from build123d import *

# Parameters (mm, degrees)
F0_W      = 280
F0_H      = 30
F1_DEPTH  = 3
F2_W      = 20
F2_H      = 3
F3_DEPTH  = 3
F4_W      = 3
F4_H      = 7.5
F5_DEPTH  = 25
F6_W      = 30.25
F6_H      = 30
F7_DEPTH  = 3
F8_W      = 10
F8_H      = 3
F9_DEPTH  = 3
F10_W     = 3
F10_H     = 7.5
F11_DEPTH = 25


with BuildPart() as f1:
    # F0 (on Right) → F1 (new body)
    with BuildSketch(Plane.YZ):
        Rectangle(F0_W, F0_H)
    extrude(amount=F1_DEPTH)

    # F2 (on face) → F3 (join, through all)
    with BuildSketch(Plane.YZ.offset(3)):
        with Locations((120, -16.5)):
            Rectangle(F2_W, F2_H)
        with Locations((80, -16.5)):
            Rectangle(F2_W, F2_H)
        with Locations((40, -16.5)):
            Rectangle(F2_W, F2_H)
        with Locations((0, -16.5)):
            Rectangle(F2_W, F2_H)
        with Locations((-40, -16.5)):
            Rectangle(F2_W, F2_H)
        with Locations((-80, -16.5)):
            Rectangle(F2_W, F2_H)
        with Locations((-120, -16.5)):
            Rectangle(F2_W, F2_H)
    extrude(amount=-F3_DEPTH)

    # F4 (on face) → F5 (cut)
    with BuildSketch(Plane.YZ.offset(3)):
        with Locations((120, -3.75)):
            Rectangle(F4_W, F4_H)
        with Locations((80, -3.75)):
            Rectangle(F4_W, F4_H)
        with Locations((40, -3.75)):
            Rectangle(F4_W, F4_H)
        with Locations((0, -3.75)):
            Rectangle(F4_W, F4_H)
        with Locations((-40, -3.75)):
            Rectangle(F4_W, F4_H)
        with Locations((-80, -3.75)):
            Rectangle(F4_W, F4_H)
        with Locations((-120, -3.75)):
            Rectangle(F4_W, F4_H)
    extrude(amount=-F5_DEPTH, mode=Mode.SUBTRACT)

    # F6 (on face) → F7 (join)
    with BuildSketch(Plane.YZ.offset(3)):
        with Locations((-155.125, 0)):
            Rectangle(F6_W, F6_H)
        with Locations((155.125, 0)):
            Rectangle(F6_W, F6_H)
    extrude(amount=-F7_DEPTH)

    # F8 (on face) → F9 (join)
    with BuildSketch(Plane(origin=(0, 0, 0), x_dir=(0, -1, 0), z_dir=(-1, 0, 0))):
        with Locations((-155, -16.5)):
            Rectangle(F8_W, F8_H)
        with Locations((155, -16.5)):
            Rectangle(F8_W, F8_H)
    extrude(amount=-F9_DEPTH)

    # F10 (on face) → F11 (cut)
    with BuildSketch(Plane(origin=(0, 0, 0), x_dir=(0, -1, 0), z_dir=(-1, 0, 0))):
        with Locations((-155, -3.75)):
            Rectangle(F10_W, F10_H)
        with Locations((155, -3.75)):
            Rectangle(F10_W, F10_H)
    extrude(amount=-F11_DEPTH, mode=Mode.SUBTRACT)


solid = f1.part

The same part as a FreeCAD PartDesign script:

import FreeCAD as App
import Part
import Sketcher
from FreeCAD import Vector


def add_polygon(sketch, points):
    """Adds a closed chain of lines whose ends are joined by coincident constraints."""
    first, n = sketch.GeometryCount, len(points)
    for a, b in zip(points, points[1:] + points[:1]):
        sketch.addGeometry(Part.LineSegment(App.Vector(*a, 0), App.Vector(*b, 0)), False)
    for i in range(n):
        sketch.addConstraint(Sketcher.Constraint("Coincident", first + i, 2, first + (i + 1) % n, 1))

doc = App.newDocument("Part")
body = doc.addObject("PartDesign::Body", "Body")

# Sketch on YZ plane
sketch1 = body.newObject("Sketcher::SketchObject", "Sketch")
sketch1.AttachmentSupport = (doc.getObject("YZ_Plane"), [""])
sketch1.MapMode = "FlatFace"
add_polygon(sketch1, [(-140, 15), (-140, -15), (140, -15), (140, 15)])  # lines 0-3
sketch1.addConstraint([
    Sketcher.Constraint("Vertical", 0),
    Sketcher.Constraint("Horizontal", 1),
    Sketcher.Constraint("Vertical", 2),
    Sketcher.Constraint("Horizontal", 3),
    Sketcher.Constraint("Symmetric", 0, 2, 2, 2, -1, 1),
    Sketcher.Constraint("DistanceX", 1, 1, 1, 2, 280.0),
    Sketcher.Constraint("DistanceY", 0, 2, 0, 1, 30.0),
])
pad1 = body.newObject("PartDesign::Pad", "Pad")
pad1.Profile = sketch1
pad1.Length = 3

# Sketch on YZ plane
sketch2 = body.newObject("Sketcher::SketchObject", "Sketch001")
sketch2.AttachmentSupport = (doc.getObject("YZ_Plane"), [""])
sketch2.MapMode = "FlatFace"
sketch2.AttachmentOffset = App.Placement(Vector(0, 0, 3), App.Rotation())
add_polygon(sketch2, [(110, -15), (110, -18), (130, -18), (130, -15)])  # lines 0-3
add_polygon(sketch2, [(70, -15), (70, -18), (90, -18), (90, -15)])  # lines 4-7
add_polygon(sketch2, [(30, -15), (30, -18), (50, -18), (50, -15)])  # lines 8-11
add_polygon(sketch2, [(-10, -15), (-10, -18), (10, -18), (10, -15)])  # lines 12-15
add_polygon(sketch2, [(-50, -15), (-50, -18), (-30, -18), (-30, -15)])  # lines 16-19
add_polygon(sketch2, [(-90, -15), (-90, -18), (-70, -18), (-70, -15)])  # lines 20-23
add_polygon(sketch2, [(-130, -15), (-130, -18), (-110, -18), (-110, -15)])  # lines 24-27
sketch2.addConstraint([
    Sketcher.Constraint("Vertical", 0),
    Sketcher.Constraint("Horizontal", 1),
    Sketcher.Constraint("Vertical", 2),
    Sketcher.Constraint("Horizontal", 3),
    Sketcher.Constraint("Vertical", 4),
    Sketcher.Constraint("Horizontal", 5),
    Sketcher.Constraint("Vertical", 6),
    Sketcher.Constraint("Horizontal", 7),
    Sketcher.Constraint("Vertical", 8),
    Sketcher.Constraint("Horizontal", 9),
    Sketcher.Constraint("Vertical", 10),
    Sketcher.Constraint("Horizontal", 11),
    Sketcher.Constraint("Vertical", 12),
    Sketcher.Constraint("Horizontal", 13),
    Sketcher.Constraint("Vertical", 14),
    Sketcher.Constraint("Horizontal", 15),
    Sketcher.Constraint("Vertical", 16),
    Sketcher.Constraint("Horizontal", 17),
    Sketcher.Constraint("Vertical", 18),
    Sketcher.Constraint("Horizontal", 19),
    Sketcher.Constraint("Vertical", 20),
    Sketcher.Constraint("Horizontal", 21),
    Sketcher.Constraint("Vertical", 22),
    Sketcher.Constraint("Horizontal", 23),
    Sketcher.Constraint("Vertical", 24),
    Sketcher.Constraint("Horizontal", 25),
    Sketcher.Constraint("Vertical", 26),
    Sketcher.Constraint("Horizontal", 27),
    Sketcher.Constraint("Symmetric", 9, 2, 16, 2, -2),
    Sketcher.Constraint("Symmetric", 11, 2, 18, 2, -2),
    Sketcher.Constraint("Symmetric", 5, 2, 20, 2, -2),
    Sketcher.Constraint("Symmetric", 7, 2, 22, 2, -2),
    Sketcher.Constraint("Symmetric", 1, 2, 24, 2, -2),
    Sketcher.Constraint("Symmetric", 3, 2, 26, 2, -2),
    Sketcher.Constraint("Horizontal", 1, 2, 4, 2),
    Sketcher.Constraint("Horizontal", 3, 2, 6, 2),
    Sketcher.Constraint("Horizontal", 5, 2, 8, 2),
    Sketcher.Constraint("Horizontal", 7, 2, 10, 2),
    Sketcher.Constraint("Horizontal", 9, 2, 12, 2),
    Sketcher.Constraint("Horizontal", 11, 2, 14, 2),
    Sketcher.Constraint("Equal", 3, 5),
    Sketcher.Constraint("Equal", 7, 9),
    Sketcher.Constraint("Equal", 11, 13),
    Sketcher.Constraint("DistanceX", 1, 1, 1, 2, 20.0),
    Sketcher.Constraint("DistanceY", 0, 2, 0, 1, 3.0),
    Sketcher.Constraint("DistanceX", -1, 1, 0, 2, 110.0),
    Sketcher.Constraint("DistanceY", 0, 2, -1, 1, 18.0),
    Sketcher.Constraint("DistanceX", -1, 1, 4, 2, 70.0),
    Sketcher.Constraint("DistanceX", -1, 1, 8, 2, 30.0),
    Sketcher.Constraint("DistanceX", 12, 2, -1, 1, 10.0),
])
pad2 = body.newObject("PartDesign::Pad", "Pad001")
pad2.Profile = sketch2
pad2.Length = 3
pad2.Reversed = True

# Sketch on YZ plane
sketch3 = body.newObject("Sketcher::SketchObject", "Sketch002")
sketch3.AttachmentSupport = (doc.getObject("YZ_Plane"), [""])
sketch3.MapMode = "FlatFace"
sketch3.AttachmentOffset = App.Placement(Vector(0, 0, 3), App.Rotation())
add_polygon(sketch3, [(118.5, 0), (118.5, -7.5), (121.5, -7.5), (121.5, 0)])  # lines 0-3
add_polygon(sketch3, [(78.5, 0), (78.5, -7.5), (81.5, -7.5), (81.5, 0)])  # lines 4-7
add_polygon(sketch3, [(38.5, 0), (38.5, -7.5), (41.5, -7.5), (41.5, 0)])  # lines 8-11
add_polygon(sketch3, [(-1.5, 0), (-1.5, -7.5), (1.5, -7.5), (1.5, 0)])  # lines 12-15
add_polygon(sketch3, [(-41.5, 0), (-41.5, -7.5), (-38.5, -7.5), (-38.5, 0)])  # lines 16-19
add_polygon(sketch3, [(-81.5, 0), (-81.5, -7.5), (-78.5, -7.5), (-78.5, 0)])  # lines 20-23
add_polygon(sketch3, [(-121.5, 0), (-121.5, -7.5), (-118.5, -7.5), (-118.5, 0)])  # lines 24-27
sketch3.addConstraint([
    Sketcher.Constraint("Vertical", 0),
    Sketcher.Constraint("Horizontal", 1),
    Sketcher.Constraint("Vertical", 2),
    Sketcher.Constraint("Horizontal", 3),
    Sketcher.Constraint("Vertical", 4),
    Sketcher.Constraint("Horizontal", 5),
    Sketcher.Constraint("Vertical", 6),
    Sketcher.Constraint("Horizontal", 7),
    Sketcher.Constraint("Vertical", 8),
    Sketcher.Constraint("Horizontal", 9),
    Sketcher.Constraint("Vertical", 10),
    Sketcher.Constraint("Horizontal", 11),
    Sketcher.Constraint("Vertical", 12),
    Sketcher.Constraint("Horizontal", 13),
    Sketcher.Constraint("Vertical", 14),
    Sketcher.Constraint("Horizontal", 15),
    Sketcher.Constraint("Vertical", 16),
    Sketcher.Constraint("Horizontal", 17),
    Sketcher.Constraint("Vertical", 18),
    Sketcher.Constraint("Horizontal", 19),
    Sketcher.Constraint("Vertical", 20),
    Sketcher.Constraint("Horizontal", 21),
    Sketcher.Constraint("Vertical", 22),
    Sketcher.Constraint("Horizontal", 23),
    Sketcher.Constraint("Vertical", 24),
    Sketcher.Constraint("Horizontal", 25),
    Sketcher.Constraint("Vertical", 26),
    Sketcher.Constraint("Horizontal", 27),
    Sketcher.Constraint("Symmetric", 14, 2, 15, 2, -1, 1),
    Sketcher.Constraint("Symmetric", 11, 2, 18, 2, -1, 1),
    Sketcher.Constraint("Symmetric", 7, 2, 22, 2, -1, 1),
    Sketcher.Constraint("Symmetric", 3, 2, 26, 2, -1, 1),
    Sketcher.Constraint("Symmetric", 9, 2, 16, 2, -2),
    Sketcher.Constraint("Symmetric", 5, 2, 20, 2, -2),
    Sketcher.Constraint("Symmetric", 1, 2, 24, 2, -2),
    Sketcher.Constraint("PointOnObject", 2, 2, -1),
    Sketcher.Constraint("PointOnObject", 6, 2, -1),
    Sketcher.Constraint("PointOnObject", 10, 2, -1),
    Sketcher.Constraint("Horizontal", 1, 2, 4, 2),
    Sketcher.Constraint("Horizontal", 5, 2, 8, 2),
    Sketcher.Constraint("Horizontal", 9, 2, 12, 2),
    Sketcher.Constraint("Equal", 3, 5),
    Sketcher.Constraint("Equal", 7, 9),
    Sketcher.Constraint("Equal", 11, 13),
    Sketcher.Constraint("DistanceX", 1, 1, 1, 2, 3.0),
    Sketcher.Constraint("DistanceY", 0, 2, 0, 1, 7.5),
    Sketcher.Constraint("DistanceX", 4, 2, 0, 2, 40.0),
    Sketcher.Constraint("DistanceX", 8, 2, 4, 2, 40.0),
    Sketcher.Constraint("DistanceX", 12, 2, 8, 2, 40.0),
])
pocket1 = body.newObject("PartDesign::Pocket", "Pocket")
pocket1.Profile = sketch3
pocket1.Length = 25

# Sketch on YZ plane
sketch4 = body.newObject("Sketcher::SketchObject", "Sketch003")
sketch4.AttachmentSupport = (doc.getObject("YZ_Plane"), [""])
sketch4.MapMode = "FlatFace"
sketch4.AttachmentOffset = App.Placement(Vector(0, 0, 3), App.Rotation())
add_polygon(sketch4, [(-170.25, 15), (-170.25, -15), (-140, -15), (-140, 15)])  # lines 0-3
add_polygon(sketch4, [(140, 15), (140, -15), (170.25, -15), (170.25, 15)])  # lines 4-7
sketch4.addConstraint([
    Sketcher.Constraint("Vertical", 0),
    Sketcher.Constraint("Horizontal", 1),
    Sketcher.Constraint("Vertical", 2),
    Sketcher.Constraint("Horizontal", 3),
    Sketcher.Constraint("Vertical", 4),
    Sketcher.Constraint("Horizontal", 5),
    Sketcher.Constraint("Vertical", 6),
    Sketcher.Constraint("Horizontal", 7),
    Sketcher.Constraint("Symmetric", 2, 2, 4, 2, -1, 1),
    Sketcher.Constraint("Symmetric", 0, 2, 6, 2, -1, 1),
    Sketcher.Constraint("Horizontal", 1, 2, 4, 2),
    Sketcher.Constraint("DistanceY", 0, 2, 0, 1, 30.0),
    Sketcher.Constraint("DistanceX", 1, 2, -1, 1, 140.0),
    Sketcher.Constraint("DistanceX", 1, 1, 1, 2, 30.25),
])
pad3 = body.newObject("PartDesign::Pad", "Pad002")
pad3.Profile = sketch4
pad3.Length = 3
pad3.Reversed = True

# Sketch on YZ plane
sketch5 = body.newObject("Sketcher::SketchObject", "Sketch004")
sketch5.AttachmentSupport = (doc.getObject("YZ_Plane"), [""])
sketch5.MapMode = "FlatFace"
add_polygon(sketch5, [(160, -15), (160, -18), (150, -18), (150, -15)])  # lines 0-3
add_polygon(sketch5, [(-150, -15), (-150, -18), (-160, -18), (-160, -15)])  # lines 4-7
sketch5.addConstraint([
    Sketcher.Constraint("Vertical", 0),
    Sketcher.Constraint("Horizontal", 1),
    Sketcher.Constraint("Vertical", 2),
    Sketcher.Constraint("Horizontal", 3),
    Sketcher.Constraint("Vertical", 4),
    Sketcher.Constraint("Horizontal", 5),
    Sketcher.Constraint("Vertical", 6),
    Sketcher.Constraint("Horizontal", 7),
    Sketcher.Constraint("Symmetric", 1, 2, 4, 2, -2),
    Sketcher.Constraint("Symmetric", 3, 2, 6, 2, -2),
    Sketcher.Constraint("DistanceX", 1, 2, 1, 1, 10.0),
    Sketcher.Constraint("DistanceY", 0, 2, 0, 1, 3.0),
    Sketcher.Constraint("DistanceX", -1, 1, 0, 2, 160.0),
    Sketcher.Constraint("DistanceY", 0, 2, -1, 1, 18.0),
])
pad4 = body.newObject("PartDesign::Pad", "Pad003")
pad4.Profile = sketch5
pad4.Length = 3

# Sketch on YZ plane
sketch6 = body.newObject("Sketcher::SketchObject", "Sketch005")
sketch6.AttachmentSupport = (doc.getObject("YZ_Plane"), [""])
sketch6.MapMode = "FlatFace"
add_polygon(sketch6, [(156.5, 0), (156.5, -7.5), (153.5, -7.5), (153.5, 0)])  # lines 0-3
add_polygon(sketch6, [(-153.5, 0), (-153.5, -7.5), (-156.5, -7.5), (-156.5, 0)])  # lines 4-7
sketch6.addConstraint([
    Sketcher.Constraint("Vertical", 0),
    Sketcher.Constraint("Horizontal", 1),
    Sketcher.Constraint("Vertical", 2),
    Sketcher.Constraint("Horizontal", 3),
    Sketcher.Constraint("Vertical", 4),
    Sketcher.Constraint("Horizontal", 5),
    Sketcher.Constraint("Vertical", 6),
    Sketcher.Constraint("Horizontal", 7),
    Sketcher.Constraint("Symmetric", 3, 2, 6, 2, -1, 1),
    Sketcher.Constraint("Symmetric", 1, 2, 4, 2, -2),
    Sketcher.Constraint("PointOnObject", 2, 2, -1),
    Sketcher.Constraint("DistanceX", 1, 2, 1, 1, 3.0),
    Sketcher.Constraint("DistanceY", 0, 2, 0, 1, 7.5),
    Sketcher.Constraint("DistanceX", 4, 2, 1, 2, 307.0),
])
pocket2 = body.newObject("PartDesign::Pocket", "Pocket001")
pocket2.Profile = sketch6
pocket2.Length = 25
pocket2.Reversed = True

doc.recompute()
